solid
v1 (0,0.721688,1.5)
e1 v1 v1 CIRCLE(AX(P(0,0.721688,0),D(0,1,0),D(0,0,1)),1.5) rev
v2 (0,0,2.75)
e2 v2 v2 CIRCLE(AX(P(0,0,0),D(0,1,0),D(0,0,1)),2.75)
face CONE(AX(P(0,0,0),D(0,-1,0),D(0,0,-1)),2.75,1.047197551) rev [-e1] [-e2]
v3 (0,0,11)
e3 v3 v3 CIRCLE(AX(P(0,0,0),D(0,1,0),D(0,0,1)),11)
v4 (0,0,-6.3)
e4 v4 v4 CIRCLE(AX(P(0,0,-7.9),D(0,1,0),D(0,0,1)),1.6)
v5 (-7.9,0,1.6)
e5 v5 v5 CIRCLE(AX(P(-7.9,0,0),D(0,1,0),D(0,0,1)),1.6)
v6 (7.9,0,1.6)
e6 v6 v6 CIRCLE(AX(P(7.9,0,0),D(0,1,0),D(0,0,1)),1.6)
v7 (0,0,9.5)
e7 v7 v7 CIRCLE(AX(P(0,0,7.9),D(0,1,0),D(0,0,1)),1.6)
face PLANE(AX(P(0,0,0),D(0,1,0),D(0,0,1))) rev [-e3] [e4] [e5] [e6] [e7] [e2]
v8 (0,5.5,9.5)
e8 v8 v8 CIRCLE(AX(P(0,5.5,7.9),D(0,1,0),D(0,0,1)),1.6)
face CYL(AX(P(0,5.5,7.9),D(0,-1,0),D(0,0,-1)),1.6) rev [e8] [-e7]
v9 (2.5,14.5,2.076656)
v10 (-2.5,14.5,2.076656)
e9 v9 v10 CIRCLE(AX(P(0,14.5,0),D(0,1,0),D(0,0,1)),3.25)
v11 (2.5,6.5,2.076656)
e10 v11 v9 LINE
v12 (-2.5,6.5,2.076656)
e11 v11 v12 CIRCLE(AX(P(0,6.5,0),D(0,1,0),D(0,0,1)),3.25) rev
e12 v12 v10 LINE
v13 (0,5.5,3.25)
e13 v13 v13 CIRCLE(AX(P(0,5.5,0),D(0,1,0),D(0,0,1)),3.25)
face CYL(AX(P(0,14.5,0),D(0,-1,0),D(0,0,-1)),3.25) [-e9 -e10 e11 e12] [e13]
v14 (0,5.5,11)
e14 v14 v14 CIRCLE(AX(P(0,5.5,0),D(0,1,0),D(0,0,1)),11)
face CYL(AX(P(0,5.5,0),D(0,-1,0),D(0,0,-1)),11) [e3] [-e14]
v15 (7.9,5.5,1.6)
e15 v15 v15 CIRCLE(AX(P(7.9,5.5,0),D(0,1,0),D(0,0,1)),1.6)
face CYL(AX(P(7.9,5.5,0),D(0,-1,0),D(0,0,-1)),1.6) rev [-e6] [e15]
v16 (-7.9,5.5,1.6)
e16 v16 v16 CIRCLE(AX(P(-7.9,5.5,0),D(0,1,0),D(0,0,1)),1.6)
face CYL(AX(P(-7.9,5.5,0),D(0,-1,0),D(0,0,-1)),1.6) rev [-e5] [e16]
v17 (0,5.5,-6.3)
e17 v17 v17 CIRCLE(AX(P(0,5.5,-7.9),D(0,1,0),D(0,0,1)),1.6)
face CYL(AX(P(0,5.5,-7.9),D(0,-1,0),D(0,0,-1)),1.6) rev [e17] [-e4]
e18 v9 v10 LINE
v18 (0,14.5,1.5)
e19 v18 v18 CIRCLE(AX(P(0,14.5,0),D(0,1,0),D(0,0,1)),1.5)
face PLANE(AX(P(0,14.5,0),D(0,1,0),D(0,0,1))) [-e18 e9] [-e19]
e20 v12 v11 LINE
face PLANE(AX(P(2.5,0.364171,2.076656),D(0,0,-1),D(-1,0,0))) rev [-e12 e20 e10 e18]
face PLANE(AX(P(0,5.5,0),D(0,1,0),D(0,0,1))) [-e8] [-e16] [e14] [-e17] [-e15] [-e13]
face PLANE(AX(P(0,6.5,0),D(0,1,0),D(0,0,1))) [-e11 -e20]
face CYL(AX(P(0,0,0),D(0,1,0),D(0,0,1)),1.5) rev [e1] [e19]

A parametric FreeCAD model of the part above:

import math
import FreeCAD as App
import Part
import Sketcher
Q = App.Units.Quantity


def edges_at(feature, points):
    """Names of the edges that pass closest to the given points."""
    edges = feature.Shape.Edges
    near = lambda p: min(range(len(edges)), key=lambda i: edges[i].distToShape(Part.Vertex(*p))[0])
    return sorted({f"Edge{near(p) + 1}" for p in points})

doc = App.newDocument("Part")
body = doc.addObject("PartDesign::Body", "Body")

sketch1 = body.newObject("Sketcher::SketchObject", "Sketch")
sketch1.AttachmentSupport = (doc.getObject("XZ_Plane"), [""])
sketch1.MapMode = "FlatFace"
sketch1.addGeometry([
    Part.Circle(App.Vector(0, 0, 0), App.Vector(0, 0, 1), 11),
    Part.Circle(App.Vector(0, -7.9, 0), App.Vector(0, 0, 1), 1.6),
    Part.Circle(App.Vector(-7.9, 0, 0), App.Vector(0, 0, 1), 1.6),
    Part.Circle(App.Vector(7.9, 0, 0), App.Vector(0, 0, 1), 1.6),
    Part.Circle(App.Vector(0, 7.9, 0), App.Vector(0, 0, 1), 1.6),
], False)
sketch1.addConstraint([
    Sketcher.Constraint("Coincident", 0, 3, -1, 1),
    Sketcher.Constraint("Equal", 1, 2),
    Sketcher.Constraint("Equal", 2, 3),
    Sketcher.Constraint("Equal", 3, 4),
    Sketcher.Constraint("Symmetric", 2, 3, 3, 3, -1, 1),
    Sketcher.Constraint("Symmetric", 1, 3, 4, 3, -1, 1),
    Sketcher.Constraint("PointOnObject", 1, 3, -2),
    Sketcher.Constraint("PointOnObject", 2, 3, -1),
    Sketcher.Constraint("Diameter", 0, Q("22 mm")),
    Sketcher.Constraint("Diameter", 1, Q("3.2 mm")),
    Sketcher.Constraint("DistanceY", 1, 3, -1, 1, Q("7.9 mm")),
    Sketcher.Constraint("DistanceX", 2, 3, -1, 1, Q("7.9 mm")),
])
pad1 = body.newObject("PartDesign::Pad", "Pad")
pad1.Profile = sketch1
pad1.Length = 5.5
pad1.Reversed = True

sketch2 = body.newObject("Sketcher::SketchObject", "Sketch001")
sketch2.AttachmentSupport = (doc.getObject("XZ_Plane"), [""])
sketch2.MapMode = "FlatFace"
sketch2.AttachmentOffset = App.Placement(App.Vector(0, 0, -5.5), App.Rotation())
sketch2.addGeometry(Part.Circle(App.Vector(0, 0, 0), App.Vector(0, 0, 1), 3.2), False)
sketch2.addConstraint([
    Sketcher.Constraint("Coincident", 0, 3, -1, 1),
    Sketcher.Constraint("Diameter", 0, Q("6.5 mm")),
])
pad2 = body.newObject("PartDesign::Pad", "Pad001")
pad2.Profile = sketch2
pad2.Length = 9
pad2.Reversed = True

sketch3 = body.newObject("Sketcher::SketchObject", "Sketch002")
sketch3.AttachmentSupport = (doc.getObject("XZ_Plane"), [""])
sketch3.MapMode = "FlatFace"
sketch3.AttachmentOffset = App.Placement(App.Vector(0, 0, -6.5), App.Rotation())
sketch3.addGeometry([
    Part.LineSegment(App.Vector(2.5, 2.1, 0), App.Vector(-2.5, 2.1, 0)),
    Part.ArcOfCircle(Part.Circle(App.Vector(0, 0, 0), App.Vector(0, 0, 1), 3.2), math.radians(40), math.radians(140)),
], False)
sketch3.addConstraint([
    Sketcher.Constraint("Coincident", 0, 1, 1, 1),
    Sketcher.Constraint("Coincident", 1, 2, 0, 2),
    Sketcher.Constraint("Horizontal", 0),
    Sketcher.Constraint("Coincident", 1, 3, -1, 1),
    Sketcher.Constraint("DistanceX", 0, 2, 0, 1, Q("5 mm")),
    Sketcher.Constraint("Radius", 1, Q("3.25 mm")),
])
pocket1 = body.newObject("PartDesign::Pocket", "Pocket")
pocket1.Profile = sketch3
pocket1.Length = 8

sketch4 = body.newObject("Sketcher::SketchObject", "Sketch003")
sketch4.AttachmentSupport = (doc.getObject("XZ_Plane"), [""])
sketch4.MapMode = "FlatFace"
sketch4.AttachmentOffset = App.Placement(App.Vector(0, 0, -14.5), App.Rotation())
sketch4.addGeometry(Part.Circle(App.Vector(0, 0, 0), App.Vector(0, 0, 1), 1.5), False)
sketch4.addConstraint([
    Sketcher.Constraint("Coincident", 0, 3, -1, 1),
    Sketcher.Constraint("Diameter", 0, Q("3 mm")),
])
pocket2 = body.newObject("PartDesign::Pocket", "Pocket001")
pocket2.Profile = sketch4
pocket2.Type = "ThroughAll"
pocket2.Reversed = True
doc.recompute()

chamfer = body.newObject("PartDesign::Chamfer", "Chamfer")
chamfer.Base = (pocket2, edges_at(pocket2, [(0, 0, -1.5)]))
chamfer.ChamferType = "Two distances"
chamfer.Size = 1.25
chamfer.Size2 = 0.721688

doc.recompute()
